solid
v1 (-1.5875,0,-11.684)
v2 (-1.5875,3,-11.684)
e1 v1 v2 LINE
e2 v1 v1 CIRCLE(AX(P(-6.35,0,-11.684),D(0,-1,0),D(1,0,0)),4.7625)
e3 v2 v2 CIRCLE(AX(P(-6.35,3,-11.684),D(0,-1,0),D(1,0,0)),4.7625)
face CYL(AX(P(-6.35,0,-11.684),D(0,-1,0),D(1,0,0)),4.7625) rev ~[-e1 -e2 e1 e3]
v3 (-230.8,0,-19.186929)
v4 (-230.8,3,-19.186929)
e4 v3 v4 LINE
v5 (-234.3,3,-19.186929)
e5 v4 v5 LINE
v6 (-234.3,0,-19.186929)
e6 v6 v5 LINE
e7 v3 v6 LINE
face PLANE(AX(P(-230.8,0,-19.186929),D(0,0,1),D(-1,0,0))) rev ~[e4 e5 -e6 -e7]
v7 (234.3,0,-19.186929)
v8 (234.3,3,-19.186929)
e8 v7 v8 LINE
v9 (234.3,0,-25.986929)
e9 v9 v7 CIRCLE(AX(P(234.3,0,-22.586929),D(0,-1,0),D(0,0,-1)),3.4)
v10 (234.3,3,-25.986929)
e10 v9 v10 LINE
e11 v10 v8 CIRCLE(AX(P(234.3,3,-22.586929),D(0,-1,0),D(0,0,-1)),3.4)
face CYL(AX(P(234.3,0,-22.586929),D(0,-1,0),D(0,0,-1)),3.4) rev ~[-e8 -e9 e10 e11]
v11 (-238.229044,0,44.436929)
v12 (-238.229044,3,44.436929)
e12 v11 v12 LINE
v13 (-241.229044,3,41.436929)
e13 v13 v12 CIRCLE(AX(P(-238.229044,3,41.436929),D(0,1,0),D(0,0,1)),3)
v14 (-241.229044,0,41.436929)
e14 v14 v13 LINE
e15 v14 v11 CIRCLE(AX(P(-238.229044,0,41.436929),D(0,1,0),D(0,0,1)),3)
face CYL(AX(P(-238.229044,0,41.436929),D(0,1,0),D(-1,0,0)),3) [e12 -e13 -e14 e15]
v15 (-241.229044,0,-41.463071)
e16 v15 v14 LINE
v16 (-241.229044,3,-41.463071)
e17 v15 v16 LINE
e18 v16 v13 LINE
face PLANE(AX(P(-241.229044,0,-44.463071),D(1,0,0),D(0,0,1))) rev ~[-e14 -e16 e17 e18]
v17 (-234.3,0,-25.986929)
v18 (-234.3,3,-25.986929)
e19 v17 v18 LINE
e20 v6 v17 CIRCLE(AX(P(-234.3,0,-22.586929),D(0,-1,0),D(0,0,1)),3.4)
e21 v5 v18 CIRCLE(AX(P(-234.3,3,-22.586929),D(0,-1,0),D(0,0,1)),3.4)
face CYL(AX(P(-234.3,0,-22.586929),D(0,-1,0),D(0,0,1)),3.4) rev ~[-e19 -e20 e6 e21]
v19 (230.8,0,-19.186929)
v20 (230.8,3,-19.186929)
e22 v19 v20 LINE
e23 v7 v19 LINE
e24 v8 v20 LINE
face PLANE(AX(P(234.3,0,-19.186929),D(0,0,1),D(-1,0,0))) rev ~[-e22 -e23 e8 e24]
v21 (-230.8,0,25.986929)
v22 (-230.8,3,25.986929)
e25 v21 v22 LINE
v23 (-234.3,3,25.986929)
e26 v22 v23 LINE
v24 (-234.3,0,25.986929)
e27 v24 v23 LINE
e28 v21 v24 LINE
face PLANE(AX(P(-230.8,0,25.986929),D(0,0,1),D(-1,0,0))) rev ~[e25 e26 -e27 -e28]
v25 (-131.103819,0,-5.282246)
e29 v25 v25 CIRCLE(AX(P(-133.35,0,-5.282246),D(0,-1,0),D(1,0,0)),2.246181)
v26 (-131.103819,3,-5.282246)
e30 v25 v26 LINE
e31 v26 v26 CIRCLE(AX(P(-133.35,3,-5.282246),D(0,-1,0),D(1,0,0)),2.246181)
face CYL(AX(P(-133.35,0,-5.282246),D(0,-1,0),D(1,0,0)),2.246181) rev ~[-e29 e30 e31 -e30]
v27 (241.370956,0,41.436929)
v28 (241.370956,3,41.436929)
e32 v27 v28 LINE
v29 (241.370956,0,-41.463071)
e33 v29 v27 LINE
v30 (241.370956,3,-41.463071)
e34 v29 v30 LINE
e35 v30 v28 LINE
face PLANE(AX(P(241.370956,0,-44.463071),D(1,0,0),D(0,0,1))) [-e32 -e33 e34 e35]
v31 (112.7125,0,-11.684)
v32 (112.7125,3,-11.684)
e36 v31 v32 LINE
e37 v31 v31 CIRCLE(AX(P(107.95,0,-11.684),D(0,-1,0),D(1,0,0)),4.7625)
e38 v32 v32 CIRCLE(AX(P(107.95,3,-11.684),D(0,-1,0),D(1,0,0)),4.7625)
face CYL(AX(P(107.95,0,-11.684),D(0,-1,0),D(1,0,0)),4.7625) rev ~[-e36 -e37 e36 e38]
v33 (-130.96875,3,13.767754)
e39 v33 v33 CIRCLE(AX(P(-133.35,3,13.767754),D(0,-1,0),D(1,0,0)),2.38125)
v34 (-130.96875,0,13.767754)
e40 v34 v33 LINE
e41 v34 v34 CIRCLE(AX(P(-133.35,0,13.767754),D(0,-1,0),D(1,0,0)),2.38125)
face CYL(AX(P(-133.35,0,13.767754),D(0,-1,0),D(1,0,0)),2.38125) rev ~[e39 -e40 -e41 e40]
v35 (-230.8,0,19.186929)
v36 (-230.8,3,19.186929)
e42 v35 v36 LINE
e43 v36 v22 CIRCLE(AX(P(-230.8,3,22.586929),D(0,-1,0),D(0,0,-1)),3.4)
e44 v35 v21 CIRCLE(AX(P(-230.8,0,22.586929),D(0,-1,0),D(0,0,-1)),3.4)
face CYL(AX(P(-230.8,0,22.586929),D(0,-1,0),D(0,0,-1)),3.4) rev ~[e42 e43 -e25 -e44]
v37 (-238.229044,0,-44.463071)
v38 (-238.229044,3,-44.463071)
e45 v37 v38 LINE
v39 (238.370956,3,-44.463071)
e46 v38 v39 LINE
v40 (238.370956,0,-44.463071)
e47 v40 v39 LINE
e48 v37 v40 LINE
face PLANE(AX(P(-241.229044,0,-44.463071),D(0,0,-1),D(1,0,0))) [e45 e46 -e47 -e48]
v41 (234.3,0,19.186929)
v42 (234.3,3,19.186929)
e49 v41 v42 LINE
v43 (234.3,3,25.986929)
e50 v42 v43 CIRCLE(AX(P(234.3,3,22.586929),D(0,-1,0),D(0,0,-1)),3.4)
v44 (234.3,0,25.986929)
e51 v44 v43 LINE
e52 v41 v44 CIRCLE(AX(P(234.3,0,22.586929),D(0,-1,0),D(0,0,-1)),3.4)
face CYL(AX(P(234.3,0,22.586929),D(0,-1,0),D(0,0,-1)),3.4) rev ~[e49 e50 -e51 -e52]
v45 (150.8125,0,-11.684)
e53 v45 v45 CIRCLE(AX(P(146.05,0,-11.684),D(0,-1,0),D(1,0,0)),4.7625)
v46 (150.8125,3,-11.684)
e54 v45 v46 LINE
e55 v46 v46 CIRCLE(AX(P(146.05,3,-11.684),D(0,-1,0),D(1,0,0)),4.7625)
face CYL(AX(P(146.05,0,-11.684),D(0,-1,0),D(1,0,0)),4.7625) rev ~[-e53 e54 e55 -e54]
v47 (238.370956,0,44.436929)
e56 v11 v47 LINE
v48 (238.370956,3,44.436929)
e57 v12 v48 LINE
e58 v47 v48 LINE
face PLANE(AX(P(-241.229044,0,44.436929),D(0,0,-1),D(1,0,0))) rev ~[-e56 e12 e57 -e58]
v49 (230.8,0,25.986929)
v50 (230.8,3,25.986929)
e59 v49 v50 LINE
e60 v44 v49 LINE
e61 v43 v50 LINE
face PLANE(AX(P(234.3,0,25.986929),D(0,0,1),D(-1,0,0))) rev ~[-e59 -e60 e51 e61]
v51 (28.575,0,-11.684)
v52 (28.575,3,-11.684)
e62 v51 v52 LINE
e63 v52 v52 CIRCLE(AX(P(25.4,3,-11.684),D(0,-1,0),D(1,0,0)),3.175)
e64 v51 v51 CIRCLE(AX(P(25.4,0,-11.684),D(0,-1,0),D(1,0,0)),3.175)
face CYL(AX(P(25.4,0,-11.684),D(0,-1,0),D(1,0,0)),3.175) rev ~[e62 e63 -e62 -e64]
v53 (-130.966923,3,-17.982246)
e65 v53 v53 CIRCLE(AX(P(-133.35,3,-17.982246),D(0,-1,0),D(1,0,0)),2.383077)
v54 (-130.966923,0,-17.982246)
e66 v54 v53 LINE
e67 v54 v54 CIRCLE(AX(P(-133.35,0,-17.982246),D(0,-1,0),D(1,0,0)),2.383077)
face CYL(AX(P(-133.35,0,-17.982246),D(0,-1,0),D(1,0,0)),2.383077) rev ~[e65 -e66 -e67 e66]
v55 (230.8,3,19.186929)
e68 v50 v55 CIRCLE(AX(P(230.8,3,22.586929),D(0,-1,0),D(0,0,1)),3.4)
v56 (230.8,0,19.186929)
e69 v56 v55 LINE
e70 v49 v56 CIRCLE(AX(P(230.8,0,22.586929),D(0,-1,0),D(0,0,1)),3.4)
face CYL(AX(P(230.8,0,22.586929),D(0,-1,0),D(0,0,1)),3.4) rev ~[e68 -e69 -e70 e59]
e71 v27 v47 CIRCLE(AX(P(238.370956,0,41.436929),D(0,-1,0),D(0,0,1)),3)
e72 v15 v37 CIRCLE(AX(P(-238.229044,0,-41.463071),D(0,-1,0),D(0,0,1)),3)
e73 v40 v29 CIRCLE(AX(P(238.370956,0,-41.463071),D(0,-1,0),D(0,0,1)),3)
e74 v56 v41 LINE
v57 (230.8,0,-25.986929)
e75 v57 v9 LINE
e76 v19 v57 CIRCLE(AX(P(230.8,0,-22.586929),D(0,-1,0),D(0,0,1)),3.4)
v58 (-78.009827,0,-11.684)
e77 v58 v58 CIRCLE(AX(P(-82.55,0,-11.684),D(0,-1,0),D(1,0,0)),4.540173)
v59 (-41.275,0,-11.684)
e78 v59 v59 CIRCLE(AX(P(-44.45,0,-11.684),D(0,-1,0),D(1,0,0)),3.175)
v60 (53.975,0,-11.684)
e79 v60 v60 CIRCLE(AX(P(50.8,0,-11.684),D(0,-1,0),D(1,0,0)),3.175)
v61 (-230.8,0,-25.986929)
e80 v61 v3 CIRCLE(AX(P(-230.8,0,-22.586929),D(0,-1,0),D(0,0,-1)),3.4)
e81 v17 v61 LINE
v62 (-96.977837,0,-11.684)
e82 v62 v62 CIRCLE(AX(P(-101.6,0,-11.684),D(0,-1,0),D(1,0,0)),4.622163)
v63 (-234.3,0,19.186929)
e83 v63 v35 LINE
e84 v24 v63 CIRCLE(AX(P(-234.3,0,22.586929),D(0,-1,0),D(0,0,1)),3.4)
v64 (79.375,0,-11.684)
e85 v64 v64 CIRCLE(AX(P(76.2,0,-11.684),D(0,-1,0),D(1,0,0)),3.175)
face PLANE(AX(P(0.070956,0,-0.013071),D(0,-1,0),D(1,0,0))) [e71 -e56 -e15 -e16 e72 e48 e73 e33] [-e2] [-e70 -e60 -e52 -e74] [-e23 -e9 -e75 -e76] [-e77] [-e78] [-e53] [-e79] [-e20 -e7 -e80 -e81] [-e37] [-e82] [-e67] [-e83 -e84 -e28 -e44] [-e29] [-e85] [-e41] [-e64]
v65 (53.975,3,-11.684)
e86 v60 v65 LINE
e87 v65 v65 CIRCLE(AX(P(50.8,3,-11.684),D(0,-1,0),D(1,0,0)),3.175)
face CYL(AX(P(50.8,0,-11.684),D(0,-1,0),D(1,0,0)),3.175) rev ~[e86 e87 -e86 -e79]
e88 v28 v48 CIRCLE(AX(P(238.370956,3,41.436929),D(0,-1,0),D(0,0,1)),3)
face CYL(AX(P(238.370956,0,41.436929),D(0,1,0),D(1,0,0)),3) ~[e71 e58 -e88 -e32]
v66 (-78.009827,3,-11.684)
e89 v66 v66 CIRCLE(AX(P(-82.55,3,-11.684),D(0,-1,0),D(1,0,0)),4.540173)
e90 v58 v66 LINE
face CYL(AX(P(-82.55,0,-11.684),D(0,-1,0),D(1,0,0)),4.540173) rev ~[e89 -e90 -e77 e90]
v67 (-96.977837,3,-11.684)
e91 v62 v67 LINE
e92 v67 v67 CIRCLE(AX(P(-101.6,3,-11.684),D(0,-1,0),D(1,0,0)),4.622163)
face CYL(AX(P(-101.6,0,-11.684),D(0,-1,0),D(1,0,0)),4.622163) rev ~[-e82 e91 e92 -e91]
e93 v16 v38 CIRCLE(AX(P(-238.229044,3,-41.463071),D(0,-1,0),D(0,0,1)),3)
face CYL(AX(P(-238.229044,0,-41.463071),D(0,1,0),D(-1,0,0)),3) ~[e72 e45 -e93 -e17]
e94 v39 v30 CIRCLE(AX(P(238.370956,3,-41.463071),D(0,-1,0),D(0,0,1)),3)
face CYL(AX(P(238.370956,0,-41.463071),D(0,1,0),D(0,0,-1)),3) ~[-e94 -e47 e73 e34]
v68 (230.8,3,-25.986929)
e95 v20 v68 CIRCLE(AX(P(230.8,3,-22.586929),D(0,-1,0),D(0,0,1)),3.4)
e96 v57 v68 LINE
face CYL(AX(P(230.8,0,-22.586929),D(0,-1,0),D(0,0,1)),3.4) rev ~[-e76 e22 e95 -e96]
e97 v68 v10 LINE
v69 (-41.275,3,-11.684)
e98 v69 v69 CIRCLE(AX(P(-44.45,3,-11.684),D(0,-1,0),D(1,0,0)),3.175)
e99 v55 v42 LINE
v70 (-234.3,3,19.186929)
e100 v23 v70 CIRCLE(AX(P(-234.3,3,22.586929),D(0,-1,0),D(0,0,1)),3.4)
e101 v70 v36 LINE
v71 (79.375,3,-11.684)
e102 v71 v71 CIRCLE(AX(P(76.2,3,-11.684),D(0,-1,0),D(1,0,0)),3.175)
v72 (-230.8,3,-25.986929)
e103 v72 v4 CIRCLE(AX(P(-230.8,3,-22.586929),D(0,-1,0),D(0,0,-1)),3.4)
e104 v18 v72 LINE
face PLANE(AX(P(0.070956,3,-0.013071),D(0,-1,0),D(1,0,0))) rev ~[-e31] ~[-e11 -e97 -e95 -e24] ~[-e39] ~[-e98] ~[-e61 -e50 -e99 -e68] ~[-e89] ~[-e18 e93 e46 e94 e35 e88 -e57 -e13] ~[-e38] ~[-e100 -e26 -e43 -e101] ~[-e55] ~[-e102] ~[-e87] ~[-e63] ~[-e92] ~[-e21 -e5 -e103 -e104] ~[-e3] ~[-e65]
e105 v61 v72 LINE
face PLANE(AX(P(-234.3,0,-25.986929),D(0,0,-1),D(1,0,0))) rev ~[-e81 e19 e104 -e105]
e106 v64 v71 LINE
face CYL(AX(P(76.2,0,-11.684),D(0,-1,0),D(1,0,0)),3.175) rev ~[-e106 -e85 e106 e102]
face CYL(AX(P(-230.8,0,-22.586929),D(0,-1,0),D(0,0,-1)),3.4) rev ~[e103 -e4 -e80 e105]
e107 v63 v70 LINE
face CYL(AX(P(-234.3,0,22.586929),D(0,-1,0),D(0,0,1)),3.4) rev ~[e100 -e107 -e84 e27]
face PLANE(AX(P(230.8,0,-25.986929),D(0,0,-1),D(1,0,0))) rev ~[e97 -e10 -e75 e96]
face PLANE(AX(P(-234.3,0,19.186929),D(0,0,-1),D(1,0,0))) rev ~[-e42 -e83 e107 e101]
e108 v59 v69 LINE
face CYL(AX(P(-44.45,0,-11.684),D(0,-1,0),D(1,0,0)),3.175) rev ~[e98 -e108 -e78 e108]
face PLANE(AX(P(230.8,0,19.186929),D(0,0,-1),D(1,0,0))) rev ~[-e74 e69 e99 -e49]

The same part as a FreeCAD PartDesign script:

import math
import FreeCAD as App
import Part
import Sketcher
Q = App.Units.Quantity


def edges_at(feature, points):
    """Names of the edges that pass closest to the given points."""
    edges = feature.Shape.Edges
    near = lambda p: min(range(len(edges)), key=lambda i: edges[i].distToShape(Part.Vertex(*p))[0])
    return sorted({f"Edge{near(p) + 1}" for p in points})


def add_polygon(sketch, points):
    """Adds a closed chain of lines whose ends are joined by coincident constraints."""
    first, n = sketch.GeometryCount, len(points)
    for a, b in zip(points, points[1:] + points[:1]):
        sketch.addGeometry(Part.LineSegment(App.Vector(*a, 0), App.Vector(*b, 0)), False)
    for i in range(n):
        sketch.addConstraint(Sketcher.Constraint("Coincident", first + i, 2, first + (i + 1) % n, 1))

doc = App.newDocument("Part")
params = doc.addObject("Spreadsheet::Sheet", "Params")
for row, (alias, value) in enumerate([
    ("sketch1_width", "19 in"),
    ("sketch1_height", "3.5 in"),
    ("pad1_length", "3 mm"),
    ("fillet_radius", "3 mm"),
    ("sketch2_diameter", "0.25 in"),
    ("sketch2_diameter2", "0.1875 in"),
    ("sketch2_diameter3", "0.375 in"),
], start=1):
    params.set(f"A{row}", alias)
    params.set(f"B{row}", "=" + value)
    params.setAlias(f"B{row}", alias)

body = doc.addObject("PartDesign::Body", "Body")

# Sketch on XZ plane
sketch1 = doc.addObject("Sketcher::SketchObject", "Sketch")
body.addObject(sketch1)
sketch1.AttachmentSupport = (doc.XZ_Plane, [""])
sketch1.MapMode = "FlatFace"
add_polygon(sketch1, [(-241, 44), (-241, -44), (241, -44), (241, 44)])  # lines 0-3
sketch1.addConstraint(Sketcher.Constraint("Vertical", 0))
sketch1.addConstraint(Sketcher.Constraint("Horizontal", 1))
sketch1.addConstraint(Sketcher.Constraint("Vertical", 2))
sketch1.addConstraint(Sketcher.Constraint("Horizontal", 3))
sketch1.addConstraint(Sketcher.Constraint("DistanceX", 1, 1, 1, 2, Q("19 in")))
sketch1.addConstraint(Sketcher.Constraint("DistanceY", 0, 2, 0, 1, Q("3.5 in")))
sketch1.addConstraint(Sketcher.Constraint("DistanceY", 0, 2, -1, 1, Q("44.463071 mm")))
sketch1.addConstraint(Sketcher.Constraint("DistanceX", 0, 2, -1, 1, Q("241.229044 mm")))
sketch1.setExpression("Constraints[8]", "Params.sketch1_width")
sketch1.setExpression("Constraints[9]", "Params.sketch1_height")
pad1 = doc.addObject("PartDesign::Pad", "Pad")
body.addObject(pad1)
pad1.Profile = sketch1
pad1.setExpression("Length", "Params.pad1_length")
pad1.Reversed = True
doc.recompute()

fillet = doc.addObject("PartDesign::Fillet", "Fillet")
body.addObject(fillet)
fillet.Base = (pad1, edges_at(pad1, [
    (-241.229, 1.5, 44.437),
    (241.371, 1.5, 44.437),
    (241.371, 1.5, -44.463),
    (-241.229, 1.5, -44.463),
]))
fillet.setExpression("Radius", "Params.fillet_radius")

# Sketch on XZ plane
sketch2 = doc.addObject("Sketcher::SketchObject", "Sketch001")
body.addObject(sketch2)
sketch2.AttachmentSupport = (doc.XZ_Plane, [""])
sketch2.MapMode = "FlatFace"
sketch2.addGeometry(Part.LineSegment(App.Vector(-234.3, 19.2, 0), App.Vector(-230.8, 19.2, 0)), False)
sketch2.addGeometry(Part.ArcOfCircle(Part.Circle(App.Vector(-230.8, 22.6, 0), App.Vector(0, 0, 1), 3.4), math.radians(-90), math.radians(90)), False)
sketch2.addGeometry(Part.LineSegment(App.Vector(-230.8, 26, 0), App.Vector(-234.3, 26, 0)), False)
sketch2.addGeometry(Part.ArcOfCircle(Part.Circle(App.Vector(-234.3, 22.6, 0), App.Vector(0, 0, 1), 3.4), math.radians(90), math.radians(270)), False)
sketch2.addGeometry(Part.ArcOfCircle(Part.Circle(App.Vector(230.8, 22.6, 0), App.Vector(0, 0, 1), 3.4), math.radians(90), math.radians(270)), False)
sketch2.addGeometry(Part.LineSegment(App.Vector(230.8, 19.2, 0), App.Vector(234.3, 19.2, 0)), False)
sketch2.addGeometry(Part.ArcOfCircle(Part.Circle(App.Vector(234.3, 22.6, 0), App.Vector(0, 0, 1), 3.4), math.radians(-90), math.radians(90)), False)
sketch2.addGeometry(Part.LineSegment(App.Vector(234.3, 26, 0), App.Vector(230.8, 26, 0)), False)
sketch2.addGeometry(Part.LineSegment(App.Vector(230.8, -26, 0), App.Vector(234.3, -26, 0)), False)
sketch2.addGeometry(Part.ArcOfCircle(Part.Circle(App.Vector(234.3, -22.6, 0), App.Vector(0, 0, 1), 3.4), math.radians(-90), math.radians(90)), False)
sketch2.addGeometry(Part.LineSegment(App.Vector(234.3, -19.2, 0), App.Vector(230.8, -19.2, 0)), False)
sketch2.addGeometry(Part.ArcOfCircle(Part.Circle(App.Vector(230.8, -22.6, 0), App.Vector(0, 0, 1), 3.4), math.radians(90), math.radians(270)), False)
sketch2.addGeometry(Part.ArcOfCircle(Part.Circle(App.Vector(-230.8, -22.6, 0), App.Vector(0, 0, 1), 3.4), math.radians(-90), math.radians(90)), False)
sketch2.addGeometry(Part.LineSegment(App.Vector(-230.8, -19.2, 0), App.Vector(-234.3, -19.2, 0)), False)
sketch2.addGeometry(Part.ArcOfCircle(Part.Circle(App.Vector(-234.3, -22.6, 0), App.Vector(0, 0, 1), 3.4), math.radians(90), math.radians(270)), False)
sketch2.addGeometry(Part.LineSegment(App.Vector(-234.3, -26, 0), App.Vector(-230.8, -26, 0)), False)
sketch2.addGeometry(Part.Circle(App.Vector(-133.3, 13.8, 0), App.Vector(0, 0, 1), 2.4), False)
sketch2.addGeometry(Part.Circle(App.Vector(-133.3, -5.3, 0), App.Vector(0, 0, 1), 2.2), False)
sketch2.addGeometry(Part.Circle(App.Vector(-133.3, -18, 0), App.Vector(0, 0, 1), 2.4), False)
sketch2.addGeometry(Part.Circle(App.Vector(-101.6, -11.7, 0), App.Vector(0, 0, 1), 4.6), False)
sketch2.addGeometry(Part.Circle(App.Vector(-82.5, -11.7, 0), App.Vector(0, 0, 1), 4.5), False)
sketch2.addGeometry(Part.Circle(App.Vector(-44.5, -11.7, 0), App.Vector(0, 0, 1), 3.2), False)
sketch2.addGeometry(Part.Circle(App.Vector(-6.3, -11.7, 0), App.Vector(0, 0, 1), 4.8), False)
sketch2.addGeometry(Part.Circle(App.Vector(25.4, -11.7, 0), App.Vector(0, 0, 1), 3.2), False)
sketch2.addGeometry(Part.Circle(App.Vector(50.8, -11.7, 0), App.Vector(0, 0, 1), 3.2), False)
sketch2.addGeometry(Part.Circle(App.Vector(76.2, -11.7, 0), App.Vector(0, 0, 1), 3.2), False)
sketch2.addGeometry(Part.Circle(App.Vector(108, -11.7, 0), App.Vector(0, 0, 1), 4.8), False)
sketch2.addGeometry(Part.Circle(App.Vector(146.1, -11.7, 0), App.Vector(0, 0, 1), 4.8), False)
sketch2.addConstraint(Sketcher.Constraint("Tangent", 0, 2, 1, 1))
sketch2.addConstraint(Sketcher.Constraint("Tangent", 1, 2, 2, 1))
sketch2.addConstraint(Sketcher.Constraint("Tangent", 2, 2, 3, 1))
sketch2.addConstraint(Sketcher.Constraint("Tangent", 3, 2, 0, 1))
sketch2.addConstraint(Sketcher.Constraint("Tangent", 4, 2, 5, 1))
sketch2.addConstraint(Sketcher.Constraint("Tangent", 5, 2, 6, 1))
sketch2.addConstraint(Sketcher.Constraint("Tangent", 6, 2, 7, 1))
sketch2.addConstraint(Sketcher.Constraint("Tangent", 7, 2, 4, 1))
sketch2.addConstraint(Sketcher.Constraint("Tangent", 8, 2, 9, 1))
sketch2.addConstraint(Sketcher.Constraint("Tangent", 9, 2, 10, 1))
sketch2.addConstraint(Sketcher.Constraint("Tangent", 10, 2, 11, 1))
sketch2.addConstraint(Sketcher.Constraint("Tangent", 11, 2, 8, 1))
sketch2.addConstraint(Sketcher.Constraint("Tangent", 12, 2, 13, 1))
sketch2.addConstraint(Sketcher.Constraint("Tangent", 13, 2, 14, 1))
sketch2.addConstraint(Sketcher.Constraint("Tangent", 14, 2, 15, 1))
sketch2.addConstraint(Sketcher.Constraint("Tangent", 15, 2, 12, 1))
sketch2.addConstraint(Sketcher.Constraint("Horizontal", 0))
sketch2.addConstraint(Sketcher.Constraint("Horizontal", 2))
sketch2.addConstraint(Sketcher.Constraint("Horizontal", 5))
sketch2.addConstraint(Sketcher.Constraint("Horizontal", 7))
sketch2.addConstraint(Sketcher.Constraint("Horizontal", 8))
sketch2.addConstraint(Sketcher.Constraint("Horizontal", 10))
sketch2.addConstraint(Sketcher.Constraint("Horizontal", 13))
sketch2.addConstraint(Sketcher.Constraint("Horizontal", 15))
sketch2.addConstraint(Sketcher.Constraint("Equal", 3, 4))
sketch2.addConstraint(Sketcher.Constraint("Equal", 6, 9))
sketch2.addConstraint(Sketcher.Constraint("Equal", 11, 12))
sketch2.addConstraint(Sketcher.Constraint("Equal", 21, 23))
sketch2.addConstraint(Sketcher.Constraint("Equal", 23, 24))
sketch2.addConstraint(Sketcher.Constraint("Equal", 24, 25))
sketch2.addConstraint(Sketcher.Constraint("Equal", 22, 26))
sketch2.addConstraint(Sketcher.Constraint("Equal", 26, 27))
sketch2.addConstraint(Sketcher.Constraint("Symmetric", 3, 3, 9, 3, -1, 1))
sketch2.addConstraint(Sketcher.Constraint("Symmetric", 4, 3, 12, 3, -1, 1))
sketch2.addConstraint(Sketcher.Constraint("Symmetric", 1, 3, 4, 3, -2))
sketch2.addConstraint(Sketcher.Constraint("Horizontal", 19, 3, 20, 3))
sketch2.addConstraint(Sketcher.Constraint("Horizontal", 20, 3, 21, 3))
sketch2.addConstraint(Sketcher.Constraint("Horizontal", 21, 3, 22, 3))
sketch2.addConstraint(Sketcher.Constraint("Horizontal", 22, 3, 23, 3))
sketch2.addConstraint(Sketcher.Constraint("Horizontal", 23, 3, 24, 3))
sketch2.addConstraint(Sketcher.Constraint("Horizontal", 24, 3, 25, 3))
sketch2.addConstraint(Sketcher.Constraint("Horizontal", 25, 3, 26, 3))
sketch2.addConstraint(Sketcher.Constraint("Horizontal", 26, 3, 27, 3))
sketch2.addConstraint(Sketcher.Constraint("Vertical", 6, 3, 9, 3))
sketch2.addConstraint(Sketcher.Constraint("Vertical", 4, 3, 11, 3))
sketch2.addConstraint(Sketcher.Constraint("Vertical", 3, 3, 14, 3))
sketch2.addConstraint(Sketcher.Constraint("Vertical", 16, 3, 17, 3))
sketch2.addConstraint(Sketcher.Constraint("Vertical", 17, 3, 18, 3))
sketch2.addConstraint(Sketcher.Constraint("Diameter", 21, Q("0.25 in")))
sketch2.addConstraint(Sketcher.Constraint("Diameter", 16, Q("0.1875 in")))
sketch2.addConstraint(Sketcher.Constraint("Diameter", 22, Q("0.375 in")))
sketch2.addConstraint(Sketcher.Constraint("DistanceX", 19, 3, -1, 1, Q("4 in")))
sketch2.addConstraint(Sketcher.Constraint("DistanceX", -1, 1, 23, 3, Q("1 in")))
sketch2.addConstraint(Sketcher.Constraint("DistanceX", -1, 1, 24, 3, Q("2 in")))
sketch2.addConstraint(Sketcher.Constraint("DistanceX", -1, 1, 25, 3, Q("3 in")))
sketch2.addConstraint(Sketcher.Constraint("DistanceX", 18, 3, 20, 3, Q("2 in")))
sketch2.addConstraint(Sketcher.Constraint("DistanceX", 20, 3, 22, 3, Q("3 in")))
sketch2.addConstraint(Sketcher.Constraint("DistanceY", 18, 3, 17, 3, Q("0.5 in")))
sketch2.addConstraint(Sketcher.Constraint("DistanceX", 20, 3, 21, 3, Q("1.5 in")))
sketch2.addConstraint(Sketcher.Constraint("DistanceX", 22, 3, 26, 3, Q("4.5 in")))
sketch2.addConstraint(Sketcher.Constraint("DistanceX", 26, 3, 27, 3, Q("1.5 in")))
sketch2.addConstraint(Sketcher.Constraint("DistanceX", 16, 3, -1, 1, Q("5.25 in")))
sketch2.addConstraint(Sketcher.Constraint("DistanceY", 19, 3, -1, 1, Q("0.46 in")))
sketch2.addConstraint(Sketcher.Constraint("Radius", 1, Q("3.4 mm")))
sketch2.addConstraint(Sketcher.Constraint("DistanceY", 17, 3, 16, 3, Q("0.75 in")))
sketch2.addConstraint(Sketcher.Constraint("Diameter", 17, Q("4.492362 mm")))
sketch2.addConstraint(Sketcher.Constraint("Diameter", 18, Q("4.766154 mm")))
sketch2.addConstraint(Sketcher.Constraint("Diameter", 19, Q("9.244326 mm")))
sketch2.addConstraint(Sketcher.Constraint("Diameter", 20, Q("9.080346 mm")))
sketch2.addConstraint(Sketcher.Constraint("DistanceX", 0, 1, 0, 2, Q("3.5 mm")))
sketch2.addConstraint(Sketcher.Constraint("DistanceX", 1, 3, -1, 1, Q("230.8 mm")))
sketch2.addConstraint(Sketcher.Constraint("DistanceY", -1, 1, 1, 3, Q("22.586929 mm")))
sketch2.addConstraint(Sketcher.Constraint("DistanceY", -1, 1, 16, 3, Q("13.767754 mm")))
sketch2.setExpression("Constraints[48]", "Params.sketch2_diameter")
sketch2.setExpression("Constraints[49]", "Params.sketch2_diameter2")
sketch2.setExpression("Constraints[50]", "Params.sketch2_diameter3")
pocket1 = doc.addObject("PartDesign::Pocket", "Pocket")
body.addObject(pocket1)
pocket1.Profile = sketch2
pocket1.Type = "ThroughAll"

doc.recompute()
